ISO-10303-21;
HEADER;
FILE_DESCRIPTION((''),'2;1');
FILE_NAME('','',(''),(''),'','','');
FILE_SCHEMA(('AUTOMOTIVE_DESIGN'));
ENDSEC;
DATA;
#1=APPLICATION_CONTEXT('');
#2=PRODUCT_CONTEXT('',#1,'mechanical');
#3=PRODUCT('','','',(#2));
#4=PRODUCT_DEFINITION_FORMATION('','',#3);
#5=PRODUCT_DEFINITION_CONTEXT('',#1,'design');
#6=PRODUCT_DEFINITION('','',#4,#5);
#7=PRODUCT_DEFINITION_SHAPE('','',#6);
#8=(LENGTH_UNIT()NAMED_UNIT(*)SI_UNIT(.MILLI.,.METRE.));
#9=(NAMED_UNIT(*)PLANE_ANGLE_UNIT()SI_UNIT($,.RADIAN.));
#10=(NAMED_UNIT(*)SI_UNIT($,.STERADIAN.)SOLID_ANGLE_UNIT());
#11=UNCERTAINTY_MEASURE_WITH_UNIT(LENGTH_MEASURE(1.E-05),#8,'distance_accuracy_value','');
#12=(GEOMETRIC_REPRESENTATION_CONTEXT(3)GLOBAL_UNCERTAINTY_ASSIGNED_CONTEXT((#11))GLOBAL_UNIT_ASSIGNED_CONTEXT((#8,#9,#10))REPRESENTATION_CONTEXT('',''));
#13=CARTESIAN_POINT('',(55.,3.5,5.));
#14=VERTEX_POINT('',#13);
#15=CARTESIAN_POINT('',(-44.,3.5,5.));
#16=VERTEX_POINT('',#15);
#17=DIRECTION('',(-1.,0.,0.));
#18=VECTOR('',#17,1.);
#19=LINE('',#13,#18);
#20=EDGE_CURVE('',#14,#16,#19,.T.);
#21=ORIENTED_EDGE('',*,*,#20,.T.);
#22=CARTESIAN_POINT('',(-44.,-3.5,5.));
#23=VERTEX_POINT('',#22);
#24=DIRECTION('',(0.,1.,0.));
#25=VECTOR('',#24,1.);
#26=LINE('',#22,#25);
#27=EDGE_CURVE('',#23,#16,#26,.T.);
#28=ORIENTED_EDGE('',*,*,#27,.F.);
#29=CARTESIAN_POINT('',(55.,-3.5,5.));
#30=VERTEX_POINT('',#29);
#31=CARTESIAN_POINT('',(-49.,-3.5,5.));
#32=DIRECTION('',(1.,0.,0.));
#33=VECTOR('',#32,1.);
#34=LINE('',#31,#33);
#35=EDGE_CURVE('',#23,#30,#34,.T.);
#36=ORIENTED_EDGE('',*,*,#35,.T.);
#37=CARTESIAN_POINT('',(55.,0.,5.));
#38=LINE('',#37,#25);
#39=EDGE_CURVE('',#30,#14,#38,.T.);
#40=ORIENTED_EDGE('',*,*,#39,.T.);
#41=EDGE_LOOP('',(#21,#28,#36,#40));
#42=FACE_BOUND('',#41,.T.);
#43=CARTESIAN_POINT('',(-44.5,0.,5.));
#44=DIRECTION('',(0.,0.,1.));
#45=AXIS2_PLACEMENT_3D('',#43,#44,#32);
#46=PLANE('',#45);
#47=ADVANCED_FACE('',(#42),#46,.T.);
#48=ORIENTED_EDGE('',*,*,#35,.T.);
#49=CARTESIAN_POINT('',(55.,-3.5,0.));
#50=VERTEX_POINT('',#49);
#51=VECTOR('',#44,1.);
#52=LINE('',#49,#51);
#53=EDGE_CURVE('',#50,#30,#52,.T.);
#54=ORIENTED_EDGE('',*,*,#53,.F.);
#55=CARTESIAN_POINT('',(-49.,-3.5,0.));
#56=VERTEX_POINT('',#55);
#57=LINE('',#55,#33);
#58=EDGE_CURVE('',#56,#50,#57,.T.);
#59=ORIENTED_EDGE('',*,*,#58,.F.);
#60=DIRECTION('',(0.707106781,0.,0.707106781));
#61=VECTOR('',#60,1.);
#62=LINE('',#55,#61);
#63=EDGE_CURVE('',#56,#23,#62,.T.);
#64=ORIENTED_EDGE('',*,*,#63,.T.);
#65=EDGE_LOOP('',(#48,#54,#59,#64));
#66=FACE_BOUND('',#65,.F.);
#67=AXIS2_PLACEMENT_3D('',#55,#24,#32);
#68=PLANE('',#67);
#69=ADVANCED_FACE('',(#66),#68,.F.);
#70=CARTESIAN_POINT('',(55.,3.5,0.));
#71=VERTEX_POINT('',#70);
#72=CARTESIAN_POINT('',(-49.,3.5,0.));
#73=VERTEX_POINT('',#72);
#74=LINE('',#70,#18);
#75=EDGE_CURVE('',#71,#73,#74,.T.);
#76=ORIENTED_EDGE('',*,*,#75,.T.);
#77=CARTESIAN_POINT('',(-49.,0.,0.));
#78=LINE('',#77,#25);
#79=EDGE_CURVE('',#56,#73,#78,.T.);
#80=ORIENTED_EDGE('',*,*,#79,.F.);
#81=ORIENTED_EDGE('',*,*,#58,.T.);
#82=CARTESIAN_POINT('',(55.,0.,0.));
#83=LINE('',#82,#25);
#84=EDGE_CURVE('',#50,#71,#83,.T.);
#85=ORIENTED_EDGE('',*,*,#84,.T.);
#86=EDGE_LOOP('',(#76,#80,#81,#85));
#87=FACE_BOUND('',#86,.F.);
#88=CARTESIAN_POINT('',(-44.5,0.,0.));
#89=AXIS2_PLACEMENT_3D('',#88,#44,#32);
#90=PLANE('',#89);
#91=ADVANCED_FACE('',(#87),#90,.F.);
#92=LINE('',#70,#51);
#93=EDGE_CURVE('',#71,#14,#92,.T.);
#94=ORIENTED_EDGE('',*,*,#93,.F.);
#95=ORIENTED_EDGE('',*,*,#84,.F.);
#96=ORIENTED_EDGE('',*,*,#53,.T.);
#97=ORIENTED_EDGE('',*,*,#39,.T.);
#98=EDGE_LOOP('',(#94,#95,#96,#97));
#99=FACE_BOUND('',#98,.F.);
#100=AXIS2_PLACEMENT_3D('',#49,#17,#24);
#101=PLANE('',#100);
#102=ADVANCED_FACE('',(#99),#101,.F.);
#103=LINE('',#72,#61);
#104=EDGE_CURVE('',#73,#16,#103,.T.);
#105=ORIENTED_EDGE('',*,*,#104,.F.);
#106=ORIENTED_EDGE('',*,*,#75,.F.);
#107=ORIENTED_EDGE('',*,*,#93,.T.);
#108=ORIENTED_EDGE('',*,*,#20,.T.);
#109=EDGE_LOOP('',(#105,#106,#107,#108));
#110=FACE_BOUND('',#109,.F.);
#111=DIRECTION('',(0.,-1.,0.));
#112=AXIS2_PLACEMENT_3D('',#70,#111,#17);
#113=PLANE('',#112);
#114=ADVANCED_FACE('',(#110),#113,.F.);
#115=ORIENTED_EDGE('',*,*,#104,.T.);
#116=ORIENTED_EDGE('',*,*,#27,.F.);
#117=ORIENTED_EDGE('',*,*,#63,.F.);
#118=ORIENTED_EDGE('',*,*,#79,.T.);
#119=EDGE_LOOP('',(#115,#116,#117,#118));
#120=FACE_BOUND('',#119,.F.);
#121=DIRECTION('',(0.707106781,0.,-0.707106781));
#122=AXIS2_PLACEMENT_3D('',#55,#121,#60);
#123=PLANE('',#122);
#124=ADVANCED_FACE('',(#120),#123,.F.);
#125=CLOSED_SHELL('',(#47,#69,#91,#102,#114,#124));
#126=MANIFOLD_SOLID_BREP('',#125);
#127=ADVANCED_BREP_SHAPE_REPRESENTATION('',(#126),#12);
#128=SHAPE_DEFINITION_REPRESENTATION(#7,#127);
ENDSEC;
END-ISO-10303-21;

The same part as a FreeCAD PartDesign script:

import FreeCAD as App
import Part
import Sketcher

V = App.Vector
Q = App.Units.Quantity


def add_polygon(sketch, points):
    """Adds a closed chain of lines whose ends are joined by coincident constraints."""
    first, n = sketch.GeometryCount, len(points)
    for a, b in zip(points, points[1:] + points[:1]):
        sketch.addGeometry(Part.LineSegment(App.Vector(*a, 0), App.Vector(*b, 0)), False)
    for i in range(n):
        sketch.addConstraint(Sketcher.Constraint("Coincident", first + i, 2, first + (i + 1) % n, 1))

doc = App.newDocument("Part")
body = doc.addObject("PartDesign::Body", "Body")

# Sketch on XY plane
sketch1 = body.newObject("Sketcher::SketchObject", "Sketch")
sketch1.AttachmentSupport = (doc.getObject("XY_Plane"), [""])
sketch1.MapMode = "FlatFace"
add_polygon(sketch1, [(-49, 3.5), (-49, -3.5), (55, -3.5), (55, 3.5)])  # lines 0-3
sketch1.addConstraint([
    Sketcher.Constraint("Vertical", 0),
    Sketcher.Constraint("Horizontal", 1),
    Sketcher.Constraint("Vertical", 2),
    Sketcher.Constraint("Horizontal", 3),
    Sketcher.Constraint("DistanceX", 1, 1, 1, 2, Q("104 mm")),
    Sketcher.Constraint("DistanceY", 0, 2, 0, 1, Q("7 mm")),
    Sketcher.Constraint("DistanceX", 0, 2, -1, 1, Q("49 mm")),
    Sketcher.Constraint("DistanceY", 0, 2, -1, 1, Q("3.5 mm")),
])
pad1 = body.newObject("PartDesign::Pad", "Pad")
pad1.Profile = sketch1
pad1.Length = 5

# Sketch on XZ plane
sketch2 = body.newObject("Sketcher::SketchObject", "Sketch001")
sketch2.AttachmentSupport = (doc.getObject("XZ_Plane"), [""])
sketch2.MapMode = "FlatFace"
sketch2.AttachmentOffset = App.Placement(V(0, 0, 3.5), App.Rotation())
add_polygon(sketch2, [(-44, 5), (-49, 5), (-49, 0)])  # lines 0-2
sketch2.addConstraint([
    Sketcher.Constraint("Horizontal", 0),
    Sketcher.Constraint("Vertical", 1),
    Sketcher.Constraint("PointOnObject", 1, 2, -1),
    Sketcher.Constraint("Equal", 0, 1),
    Sketcher.Constraint("DistanceX", 0, 2, 0, 1, Q("5 mm")),
    Sketcher.Constraint("DistanceX", 0, 2, -1, 1, Q("49 mm")),
])
pocket1 = body.newObject("PartDesign::Pocket", "Pocket")
pocket1.Profile = sketch2
pocket1.Length = 7

doc.recompute()
